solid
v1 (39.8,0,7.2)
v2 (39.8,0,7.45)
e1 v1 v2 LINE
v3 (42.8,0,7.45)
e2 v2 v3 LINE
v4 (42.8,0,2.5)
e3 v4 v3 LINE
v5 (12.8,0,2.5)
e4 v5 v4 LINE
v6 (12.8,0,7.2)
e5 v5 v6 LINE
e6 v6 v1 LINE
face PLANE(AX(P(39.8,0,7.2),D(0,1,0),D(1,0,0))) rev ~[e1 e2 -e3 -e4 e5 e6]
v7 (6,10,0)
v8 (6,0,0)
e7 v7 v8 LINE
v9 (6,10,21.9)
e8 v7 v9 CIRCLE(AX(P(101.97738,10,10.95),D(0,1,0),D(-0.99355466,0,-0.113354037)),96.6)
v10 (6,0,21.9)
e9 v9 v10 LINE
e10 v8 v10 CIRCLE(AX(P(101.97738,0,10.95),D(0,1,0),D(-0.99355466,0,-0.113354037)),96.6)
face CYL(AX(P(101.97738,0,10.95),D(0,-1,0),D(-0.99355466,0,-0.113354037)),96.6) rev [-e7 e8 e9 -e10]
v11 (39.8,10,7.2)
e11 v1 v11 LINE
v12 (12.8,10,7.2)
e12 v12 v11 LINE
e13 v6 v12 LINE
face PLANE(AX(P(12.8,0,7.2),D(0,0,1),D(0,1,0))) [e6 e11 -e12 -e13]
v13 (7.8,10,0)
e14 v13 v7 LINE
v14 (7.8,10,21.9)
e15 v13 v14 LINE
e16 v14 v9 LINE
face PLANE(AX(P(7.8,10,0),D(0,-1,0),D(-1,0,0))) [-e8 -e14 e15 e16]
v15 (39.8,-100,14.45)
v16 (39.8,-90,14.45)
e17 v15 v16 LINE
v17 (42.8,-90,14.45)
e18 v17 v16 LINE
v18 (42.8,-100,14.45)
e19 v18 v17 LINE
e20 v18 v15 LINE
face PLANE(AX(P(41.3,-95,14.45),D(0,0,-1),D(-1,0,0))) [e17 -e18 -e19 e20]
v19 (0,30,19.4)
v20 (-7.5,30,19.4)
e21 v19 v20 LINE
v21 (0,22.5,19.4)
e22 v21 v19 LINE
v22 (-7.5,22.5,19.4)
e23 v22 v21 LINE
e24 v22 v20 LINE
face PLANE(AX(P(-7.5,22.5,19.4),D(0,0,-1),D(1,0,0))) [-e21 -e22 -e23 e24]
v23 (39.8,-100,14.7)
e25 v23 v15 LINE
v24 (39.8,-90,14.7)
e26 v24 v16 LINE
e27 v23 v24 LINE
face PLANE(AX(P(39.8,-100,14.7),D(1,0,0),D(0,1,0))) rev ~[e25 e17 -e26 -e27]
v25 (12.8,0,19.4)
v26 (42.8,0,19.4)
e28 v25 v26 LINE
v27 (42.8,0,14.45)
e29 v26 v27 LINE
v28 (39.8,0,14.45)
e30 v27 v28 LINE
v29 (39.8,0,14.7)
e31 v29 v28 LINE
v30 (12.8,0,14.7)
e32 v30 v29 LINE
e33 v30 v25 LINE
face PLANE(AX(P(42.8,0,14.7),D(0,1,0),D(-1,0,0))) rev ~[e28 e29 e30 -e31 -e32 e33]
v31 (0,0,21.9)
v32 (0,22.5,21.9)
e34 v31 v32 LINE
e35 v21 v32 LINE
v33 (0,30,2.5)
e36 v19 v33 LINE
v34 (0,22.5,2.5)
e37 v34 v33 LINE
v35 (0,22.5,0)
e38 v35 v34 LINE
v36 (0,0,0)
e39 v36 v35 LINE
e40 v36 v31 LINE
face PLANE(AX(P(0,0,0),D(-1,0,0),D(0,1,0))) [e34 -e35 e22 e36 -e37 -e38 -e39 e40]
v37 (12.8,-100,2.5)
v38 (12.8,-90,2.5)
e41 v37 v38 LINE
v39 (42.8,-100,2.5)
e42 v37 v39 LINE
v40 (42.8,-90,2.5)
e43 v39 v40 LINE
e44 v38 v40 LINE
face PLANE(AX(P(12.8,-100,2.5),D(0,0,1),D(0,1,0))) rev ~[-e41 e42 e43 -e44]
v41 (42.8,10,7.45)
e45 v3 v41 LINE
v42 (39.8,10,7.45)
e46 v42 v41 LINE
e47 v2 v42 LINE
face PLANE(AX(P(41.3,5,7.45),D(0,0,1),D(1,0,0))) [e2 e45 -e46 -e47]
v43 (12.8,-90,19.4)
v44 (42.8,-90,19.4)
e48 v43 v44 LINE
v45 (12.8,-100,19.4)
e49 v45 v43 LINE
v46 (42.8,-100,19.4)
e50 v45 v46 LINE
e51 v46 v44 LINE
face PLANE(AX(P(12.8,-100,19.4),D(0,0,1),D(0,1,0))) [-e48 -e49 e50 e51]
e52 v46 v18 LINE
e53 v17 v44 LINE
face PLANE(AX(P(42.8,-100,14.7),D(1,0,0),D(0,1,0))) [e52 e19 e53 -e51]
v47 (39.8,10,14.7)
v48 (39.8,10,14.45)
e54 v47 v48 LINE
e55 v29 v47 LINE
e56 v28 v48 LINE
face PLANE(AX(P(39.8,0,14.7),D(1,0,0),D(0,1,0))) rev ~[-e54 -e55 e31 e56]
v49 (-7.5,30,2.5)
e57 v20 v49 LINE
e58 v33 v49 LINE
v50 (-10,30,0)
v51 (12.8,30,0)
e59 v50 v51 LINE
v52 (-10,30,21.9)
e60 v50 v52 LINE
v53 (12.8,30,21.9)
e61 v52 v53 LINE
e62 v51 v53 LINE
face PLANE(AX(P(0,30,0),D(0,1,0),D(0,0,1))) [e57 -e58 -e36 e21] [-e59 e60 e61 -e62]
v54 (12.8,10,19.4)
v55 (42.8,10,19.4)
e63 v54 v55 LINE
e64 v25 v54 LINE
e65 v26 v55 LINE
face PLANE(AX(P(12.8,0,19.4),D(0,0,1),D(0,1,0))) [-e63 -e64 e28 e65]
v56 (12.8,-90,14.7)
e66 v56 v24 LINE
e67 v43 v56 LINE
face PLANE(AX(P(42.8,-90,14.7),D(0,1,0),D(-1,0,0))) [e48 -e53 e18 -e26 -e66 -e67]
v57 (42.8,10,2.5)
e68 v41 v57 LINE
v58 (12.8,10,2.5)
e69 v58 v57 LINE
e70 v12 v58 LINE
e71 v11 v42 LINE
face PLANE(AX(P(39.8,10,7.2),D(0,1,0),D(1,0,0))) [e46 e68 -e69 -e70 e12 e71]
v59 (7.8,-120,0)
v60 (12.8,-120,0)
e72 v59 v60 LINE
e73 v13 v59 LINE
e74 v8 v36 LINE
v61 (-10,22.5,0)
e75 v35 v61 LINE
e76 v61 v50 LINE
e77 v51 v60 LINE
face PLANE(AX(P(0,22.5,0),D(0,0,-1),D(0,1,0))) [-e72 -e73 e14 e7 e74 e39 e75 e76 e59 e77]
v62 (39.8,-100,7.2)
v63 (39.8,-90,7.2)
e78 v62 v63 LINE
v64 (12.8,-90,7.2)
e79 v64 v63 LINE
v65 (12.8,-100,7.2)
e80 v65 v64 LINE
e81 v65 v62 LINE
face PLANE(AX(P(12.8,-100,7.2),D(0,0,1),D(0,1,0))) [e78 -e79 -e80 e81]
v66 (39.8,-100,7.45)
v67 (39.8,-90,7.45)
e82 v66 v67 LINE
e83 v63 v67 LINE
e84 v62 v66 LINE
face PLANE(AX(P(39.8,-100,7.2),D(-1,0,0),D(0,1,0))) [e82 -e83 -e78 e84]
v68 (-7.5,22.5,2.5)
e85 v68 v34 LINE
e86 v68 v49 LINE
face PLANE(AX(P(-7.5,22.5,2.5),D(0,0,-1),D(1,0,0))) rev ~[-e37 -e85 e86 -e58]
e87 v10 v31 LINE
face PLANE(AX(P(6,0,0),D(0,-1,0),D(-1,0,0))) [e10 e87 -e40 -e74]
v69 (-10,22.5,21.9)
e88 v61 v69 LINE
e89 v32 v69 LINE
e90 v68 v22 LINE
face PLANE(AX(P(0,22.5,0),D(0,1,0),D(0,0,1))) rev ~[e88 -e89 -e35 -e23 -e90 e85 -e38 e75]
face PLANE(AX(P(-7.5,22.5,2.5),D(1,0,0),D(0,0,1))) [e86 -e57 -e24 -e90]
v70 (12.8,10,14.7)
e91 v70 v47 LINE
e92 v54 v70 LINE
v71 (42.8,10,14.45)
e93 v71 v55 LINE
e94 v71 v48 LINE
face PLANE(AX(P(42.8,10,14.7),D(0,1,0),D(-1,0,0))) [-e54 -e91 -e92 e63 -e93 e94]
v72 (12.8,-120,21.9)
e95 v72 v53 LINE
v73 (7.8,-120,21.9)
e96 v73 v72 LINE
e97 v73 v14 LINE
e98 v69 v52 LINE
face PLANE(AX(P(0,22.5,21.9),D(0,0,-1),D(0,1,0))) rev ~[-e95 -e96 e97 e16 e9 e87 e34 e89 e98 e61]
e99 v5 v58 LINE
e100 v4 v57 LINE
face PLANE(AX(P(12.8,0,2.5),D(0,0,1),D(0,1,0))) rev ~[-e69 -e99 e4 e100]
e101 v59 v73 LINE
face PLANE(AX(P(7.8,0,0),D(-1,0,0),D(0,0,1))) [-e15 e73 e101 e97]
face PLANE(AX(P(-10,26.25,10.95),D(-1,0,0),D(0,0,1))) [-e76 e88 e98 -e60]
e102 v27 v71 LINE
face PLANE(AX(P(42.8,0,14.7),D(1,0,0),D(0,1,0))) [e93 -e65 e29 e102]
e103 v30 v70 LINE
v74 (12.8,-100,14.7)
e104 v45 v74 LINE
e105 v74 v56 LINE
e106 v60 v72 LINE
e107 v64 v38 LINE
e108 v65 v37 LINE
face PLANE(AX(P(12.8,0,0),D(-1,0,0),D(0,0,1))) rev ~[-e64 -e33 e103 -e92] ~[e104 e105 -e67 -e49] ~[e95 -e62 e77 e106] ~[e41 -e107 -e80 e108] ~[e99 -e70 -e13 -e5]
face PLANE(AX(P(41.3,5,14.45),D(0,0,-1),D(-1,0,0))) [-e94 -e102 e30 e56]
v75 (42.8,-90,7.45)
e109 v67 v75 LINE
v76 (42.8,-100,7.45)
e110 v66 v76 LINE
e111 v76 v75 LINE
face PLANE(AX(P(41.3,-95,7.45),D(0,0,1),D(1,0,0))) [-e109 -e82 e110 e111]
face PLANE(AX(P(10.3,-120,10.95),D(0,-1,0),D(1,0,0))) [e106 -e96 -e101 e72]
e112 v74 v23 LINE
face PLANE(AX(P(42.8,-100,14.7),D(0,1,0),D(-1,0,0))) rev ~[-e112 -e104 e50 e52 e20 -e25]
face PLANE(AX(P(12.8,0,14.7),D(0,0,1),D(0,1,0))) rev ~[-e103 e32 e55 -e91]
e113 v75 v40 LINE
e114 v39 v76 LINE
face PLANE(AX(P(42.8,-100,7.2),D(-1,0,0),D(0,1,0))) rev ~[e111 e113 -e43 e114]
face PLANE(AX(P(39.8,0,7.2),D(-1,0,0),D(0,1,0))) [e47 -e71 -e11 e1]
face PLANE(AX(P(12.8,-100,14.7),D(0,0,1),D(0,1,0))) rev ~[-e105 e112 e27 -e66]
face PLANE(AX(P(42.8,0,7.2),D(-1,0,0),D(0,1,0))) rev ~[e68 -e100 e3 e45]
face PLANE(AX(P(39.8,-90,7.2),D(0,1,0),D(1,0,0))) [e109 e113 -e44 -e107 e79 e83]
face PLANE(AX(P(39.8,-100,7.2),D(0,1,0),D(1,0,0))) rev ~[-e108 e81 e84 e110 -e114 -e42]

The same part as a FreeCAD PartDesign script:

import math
import FreeCAD as App
import Part
import Sketcher

V = App.Vector

doc = App.newDocument("Part")
body = doc.addObject("PartDesign::Body", "Body")

# Sketch on XY plane
sketch1 = body.newObject("Sketcher::SketchObject", "Sketch")
sketch1.AttachmentSupport = (doc.getObject("XY_Plane"), [""])
sketch1.MapMode = "FlatFace"
sketch1.addGeometry(Part.LineSegment(V(0, 30, 0), V(0, 0, 0)), False)
sketch1.addGeometry(Part.LineSegment(V(0, 0, 0), V(6, 0, 0)), False)
sketch1.addGeometry(Part.LineSegment(V(6, 0, 0), V(6, 10, 0)), False)
sketch1.addGeometry(Part.LineSegment(V(6, 10, 0), V(7.8, 10, 0)), False)
sketch1.addGeometry(Part.LineSegment(V(7.8, 10, 0), V(7.8, 0, 0)), False)
sketch1.addGeometry(Part.LineSegment(V(7.8, 0, 0), V(12.8, 0, 0)), False)
sketch1.addGeometry(Part.LineSegment(V(12.8, 0, 0), V(12.8, 30, 0)), False)
sketch1.addGeometry(Part.LineSegment(V(12.8, 30, 0), V(0, 30, 0)), False)
sketch1.addConstraint(Sketcher.Constraint("Coincident", 0, 2, 1, 1))
sketch1.addConstraint(Sketcher.Constraint("Coincident", 1, 2, 2, 1))
sketch1.addConstraint(Sketcher.Constraint("Coincident", 2, 2, 3, 1))
sketch1.addConstraint(Sketcher.Constraint("Coincident", 3, 2, 4, 1))
sketch1.addConstraint(Sketcher.Constraint("Coincident", 4, 2, 5, 1))
sketch1.addConstraint(Sketcher.Constraint("Coincident", 5, 2, 6, 1))
sketch1.addConstraint(Sketcher.Constraint("Coincident", 6, 2, 7, 1))
sketch1.addConstraint(Sketcher.Constraint("Coincident", 7, 2, 0, 1))
sketch1.addConstraint(Sketcher.Constraint("Vertical", 0))
sketch1.addConstraint(Sketcher.Constraint("Horizontal", 1))
sketch1.addConstraint(Sketcher.Constraint("Vertical", 2))
sketch1.addConstraint(Sketcher.Constraint("Horizontal", 3))
sketch1.addConstraint(Sketcher.Constraint("Vertical", 4))
sketch1.addConstraint(Sketcher.Constraint("Horizontal", 5))
sketch1.addConstraint(Sketcher.Constraint("Vertical", 6))
sketch1.addConstraint(Sketcher.Constraint("Horizontal", 7))
sketch1.addConstraint(Sketcher.Constraint("Coincident", 0, 2, -1, 1))
sketch1.addConstraint(Sketcher.Constraint("PointOnObject", 4, 2, -1))
sketch1.addConstraint(Sketcher.Constraint("DistanceX", 1, 1, 1, 2, 6.0))
sketch1.addConstraint(Sketcher.Constraint("DistanceX", 5, 1, 5, 2, 5.0))
sketch1.addConstraint(Sketcher.Constraint("DistanceY", 0, 2, 0, 1, 30.0))
sketch1.addConstraint(Sketcher.Constraint("DistanceY", 2, 1, 2, 2, 10.0))
sketch1.addConstraint(Sketcher.Constraint("DistanceX", 3, 1, 3, 2, 1.8))
pad1 = body.newObject("PartDesign::Pad", "Pad")
pad1.Profile = sketch1
pad1.Length = 21.9

# Sketch on YZ plane
sketch2 = body.newObject("Sketcher::SketchObject", "Sketch001")
sketch2.AttachmentSupport = (doc.getObject("YZ_Plane"), [""])
sketch2.MapMode = "FlatFace"
sketch2.AttachmentOffset = App.Placement(V(0, 0, 12.8), App.Rotation())
sketch2.addGeometry(Part.LineSegment(V(10, 19.4, 0), V(0, 19.4, 0)), False)
sketch2.addGeometry(Part.LineSegment(V(0, 19.4, 0), V(0, 14.7, 0)), False)
sketch2.addGeometry(Part.LineSegment(V(0, 14.7, 0), V(10, 14.7, 0)), False)
sketch2.addGeometry(Part.LineSegment(V(10, 14.7, 0), V(10, 19.4, 0)), False)
sketch2.addGeometry(Part.LineSegment(V(10, 7.2, 0), V(0, 7.2, 0)), False)
sketch2.addGeometry(Part.LineSegment(V(0, 7.2, 0), V(0, 2.5, 0)), False)
sketch2.addGeometry(Part.LineSegment(V(0, 2.5, 0), V(10, 2.5, 0)), False)
sketch2.addGeometry(Part.LineSegment(V(10, 2.5, 0), V(10, 7.2, 0)), False)
sketch2.addConstraint(Sketcher.Constraint("Coincident", 0, 2, 1, 1))
sketch2.addConstraint(Sketcher.Constraint("Coincident", 1, 2, 2, 1))
sketch2.addConstraint(Sketcher.Constraint("Coincident", 2, 2, 3, 1))
sketch2.addConstraint(Sketcher.Constraint("Coincident", 3, 2, 0, 1))
sketch2.addConstraint(Sketcher.Constraint("Coincident", 4, 2, 5, 1))
sketch2.addConstraint(Sketcher.Constraint("Coincident", 5, 2, 6, 1))
sketch2.addConstraint(Sketcher.Constraint("Coincident", 6, 2, 7, 1))
sketch2.addConstraint(Sketcher.Constraint("Coincident", 7, 2, 4, 1))
sketch2.addConstraint(Sketcher.Constraint("Horizontal", 0))
sketch2.addConstraint(Sketcher.Constraint("Vertical", 1))
sketch2.addConstraint(Sketcher.Constraint("Horizontal", 2))
sketch2.addConstraint(Sketcher.Constraint("Vertical", 3))
sketch2.addConstraint(Sketcher.Constraint("Horizontal", 4))
sketch2.addConstraint(Sketcher.Constraint("Vertical", 5))
sketch2.addConstraint(Sketcher.Constraint("Horizontal", 6))
sketch2.addConstraint(Sketcher.Constraint("Vertical", 7))
sketch2.addConstraint(Sketcher.Constraint("PointOnObject", 0, 2, -2))
sketch2.addConstraint(Sketcher.Constraint("PointOnObject", 4, 2, -2))
sketch2.addConstraint(Sketcher.Constraint("Vertical", 3, 2, 6, 2))
sketch2.addConstraint(Sketcher.Constraint("Equal", 3, 5))
sketch2.addConstraint(Sketcher.Constraint("DistanceX", 0, 2, 0, 1, 10.0))
sketch2.addConstraint(Sketcher.Constraint("DistanceY", 1, 2, 1, 1, 4.7))
sketch2.addConstraint(Sketcher.Constraint("DistanceY", -1, 1, 0, 2, 19.4))
sketch2.addConstraint(Sketcher.Constraint("DistanceY", -1, 1, 4, 2, 7.2))
pad2 = body.newObject("PartDesign::Pad", "Pad001")
pad2.Profile = sketch2
pad2.Length = 30

# Sketch on XZ plane
sketch3 = body.newObject("Sketcher::SketchObject", "Sketch002")
sketch3.AttachmentSupport = (doc.getObject("XZ_Plane"), [""])
sketch3.MapMode = "FlatFace"
sketch3.addGeometry(Part.LineSegment(V(8, 22, 0), V(8, 0, 0)), False)
sketch3.addGeometry(Part.LineSegment(V(8, 0, 0), V(13, 0, 0)), False)
sketch3.addGeometry(Part.LineSegment(V(13, 0, 0), V(13, 22, 0)), False)
sketch3.addGeometry(Part.LineSegment(V(13, 22, 0), V(8, 22, 0)), False)
sketch3.addConstraint(Sketcher.Constraint("Coincident", 0, 2, 1, 1))
sketch3.addConstraint(Sketcher.Constraint("Coincident", 1, 2, 2, 1))
sketch3.addConstraint(Sketcher.Constraint("Coincident", 2, 2, 3, 1))
sketch3.addConstraint(Sketcher.Constraint("Coincident", 3, 2, 0, 1))
sketch3.addConstraint(Sketcher.Constraint("Vertical", 0))
sketch3.addConstraint(Sketcher.Constraint("Horizontal", 1))
sketch3.addConstraint(Sketcher.Constraint("Vertical", 2))
sketch3.addConstraint(Sketcher.Constraint("Horizontal", 3))
sketch3.addConstraint(Sketcher.Constraint("PointOnObject", 0, 2, -1))
sketch3.addConstraint(Sketcher.Constraint("DistanceX", 1, 1, 1, 2, 5.0))
sketch3.addConstraint(Sketcher.Constraint("DistanceY", 0, 2, 0, 1, 21.9))
sketch3.addConstraint(Sketcher.Constraint("DistanceX", -1, 1, 0, 2, 7.8))
pad3 = body.newObject("PartDesign::Pad", "Pad002")
pad3.Profile = sketch3
pad3.Length = 120

# Sketch on XY plane
sketch4 = body.newObject("Sketcher::SketchObject", "Sketch003")
sketch4.AttachmentSupport = (doc.getObject("XY_Plane"), [""])
sketch4.MapMode = "FlatFace"
sketch4.AttachmentOffset = App.Placement(V(0, 0, 14.7), App.Rotation())
sketch4.addGeometry(Part.LineSegment(V(42.8, 10, 0), V(42.8, 0, 0)), False)
sketch4.addGeometry(Part.LineSegment(V(42.8, 0, 0), V(39.8, 0, 0)), False)
sketch4.addGeometry(Part.LineSegment(V(39.8, 0, 0), V(39.8, 10, 0)), False)
sketch4.addGeometry(Part.LineSegment(V(39.8, 10, 0), V(42.8, 10, 0)), False)
sketch4.addConstraint(Sketcher.Constraint("Coincident", 0, 2, 1, 1))
sketch4.addConstraint(Sketcher.Constraint("Coincident", 1, 2, 2, 1))
sketch4.addConstraint(Sketcher.Constraint("Coincident", 2, 2, 3, 1))
sketch4.addConstraint(Sketcher.Constraint("Coincident", 3, 2, 0, 1))
sketch4.addConstraint(Sketcher.Constraint("Vertical", 0))
sketch4.addConstraint(Sketcher.Constraint("Horizontal", 1))
sketch4.addConstraint(Sketcher.Constraint("Vertical", 2))
sketch4.addConstraint(Sketcher.Constraint("Horizontal", 3))
sketch4.addConstraint(Sketcher.Constraint("PointOnObject", 0, 2, -1))
sketch4.addConstraint(Sketcher.Constraint("DistanceX", 1, 2, 1, 1, 3.0))
sketch4.addConstraint(Sketcher.Constraint("DistanceY", 0, 2, 0, 1, 10.0))
sketch4.addConstraint(Sketcher.Constraint("DistanceX", -1, 1, 0, 2, 42.8))
pad4 = body.newObject("PartDesign::Pad", "Pad003")
pad4.Profile = sketch4
pad4.Length = 0.25
pad4.Reversed = True

# Sketch on XY plane
sketch5 = body.newObject("Sketcher::SketchObject", "Sketch004")
sketch5.AttachmentSupport = (doc.getObject("XY_Plane"), [""])
sketch5.MapMode = "FlatFace"
sketch5.AttachmentOffset = App.Placement(V(0, 0, 7.2), App.Rotation())
sketch5.addGeometry(Part.LineSegment(V(39.8, 10, 0), V(39.8, 0, 0)), False)
sketch5.addGeometry(Part.LineSegment(V(39.8, 0, 0), V(42.8, 0, 0)), False)
sketch5.addGeometry(Part.LineSegment(V(42.8, 0, 0), V(42.8, 10, 0)), False)
sketch5.addGeometry(Part.LineSegment(V(42.8, 10, 0), V(39.8, 10, 0)), False)
sketch5.addConstraint(Sketcher.Constraint("Coincident", 0, 2, 1, 1))
sketch5.addConstraint(Sketcher.Constraint("Coincident", 1, 2, 2, 1))
sketch5.addConstraint(Sketcher.Constraint("Coincident", 2, 2, 3, 1))
sketch5.addConstraint(Sketcher.Constraint("Coincident", 3, 2, 0, 1))
sketch5.addConstraint(Sketcher.Constraint("Vertical", 0))
sketch5.addConstraint(Sketcher.Constraint("Horizontal", 1))
sketch5.addConstraint(Sketcher.Constraint("Vertical", 2))
sketch5.addConstraint(Sketcher.Constraint("Horizontal", 3))
sketch5.addConstraint(Sketcher.Constraint("PointOnObject", 0, 2, -1))
sketch5.addConstraint(Sketcher.Constraint("DistanceX", 1, 1, 1, 2, 3.0))
sketch5.addConstraint(Sketcher.Constraint("DistanceY", 0, 2, 0, 1, 10.0))
sketch5.addConstraint(Sketcher.Constraint("DistanceX", -1, 1, 0, 2, 39.8))
pad5 = body.newObject("PartDesign::Pad", "Pad004")
pad5.Profile = sketch5
pad5.Length = 0.25

# Sketch on XZ plane
sketch6 = body.newObject("Sketcher::SketchObject", "Sketch005")
sketch6.AttachmentSupport = (doc.getObject("XZ_Plane"), [""])
sketch6.MapMode = "FlatFace"
sketch6.addGeometry(Part.LineSegment(V(6, 0, 0), V(6, 22, 0)), False)
sketch6.addGeometry(Part.ArcOfCircle(Part.Circle(V(102, 11, 0), V(0, 0, 1), 97), math.radians(173.49), math.radians(186.51)), False)
sketch6.addConstraint(Sketcher.Constraint("Coincident", 0, 1, 1, 2))
sketch6.addConstraint(Sketcher.Constraint("Coincident", 1, 1, 0, 2))
sketch6.addConstraint(Sketcher.Constraint("Vertical", 0))
sketch6.addConstraint(Sketcher.Constraint("PointOnObject", 0, 1, -1))
sketch6.addConstraint(Sketcher.Constraint("Radius", 1, 96.6))
sketch6.addConstraint(Sketcher.Constraint("DistanceY", 0, 1, 0, 2, 21.9))
sketch6.addConstraint(Sketcher.Constraint("DistanceX", -1, 1, 0, 1, 6.0))
pocket1 = body.newObject("PartDesign::Pocket", "Pocket")
pocket1.Profile = sketch6
pocket1.Length = 10

# Sketch on YZ plane
sketch7 = body.newObject("Sketcher::SketchObject", "Sketch006")
sketch7.AttachmentSupport = (doc.getObject("YZ_Plane"), [""])
sketch7.MapMode = "FlatFace"
sketch7.addGeometry(Part.LineSegment(V(30, 0, 0), V(22, 0, 0)), False)
sketch7.addGeometry(Part.LineSegment(V(22, 0, 0), V(22, 22, 0)), False)
sketch7.addGeometry(Part.LineSegment(V(22, 22, 0), V(30, 22, 0)), False)
sketch7.addGeometry(Part.LineSegment(V(30, 22, 0), V(30, 0, 0)), False)
sketch7.addConstraint(Sketcher.Constraint("Coincident", 0, 2, 1, 1))
sketch7.addConstraint(Sketcher.Constraint("Coincident", 1, 2, 2, 1))
sketch7.addConstraint(Sketcher.Constraint("Coincident", 2, 2, 3, 1))
sketch7.addConstraint(Sketcher.Constraint("Coincident", 3, 2, 0, 1))
sketch7.addConstraint(Sketcher.Constraint("Horizontal", 0))
sketch7.addConstraint(Sketcher.Constraint("Vertical", 1))
sketch7.addConstraint(Sketcher.Constraint("Horizontal", 2))
sketch7.addConstraint(Sketcher.Constraint("Vertical", 3))
sketch7.addConstraint(Sketcher.Constraint("PointOnObject", 0, 2, -1))
sketch7.addConstraint(Sketcher.Constraint("DistanceX", 0, 2, 0, 1, 7.5))
sketch7.addConstraint(Sketcher.Constraint("DistanceY", 1, 1, 1, 2, 21.9))
sketch7.addConstraint(Sketcher.Constraint("DistanceX", -1, 1, 2, 2, 30.0))
pad6 = body.newObject("PartDesign::Pad", "Pad005")
pad6.Profile = sketch7
pad6.Length = 10
pad6.Reversed = True

# Sketch on XZ plane
sketch8 = body.newObject("Sketcher::SketchObject", "Sketch007")
sketch8.AttachmentSupport = (doc.getObject("XZ_Plane"), [""])
sketch8.MapMode = "FlatFace"
sketch8.AttachmentOffset = App.Placement(V(0, 0, -22.5), App.Rotation())
sketch8.addGeometry(Part.LineSegment(V(-8, 19, 0), V(-8, 2, 0)), False)
sketch8.addGeometry(Part.LineSegment(V(-8, 2, 0), V(0, 2, 0)), False)
sketch8.addGeometry(Part.LineSegment(V(0, 2, 0), V(0, 19, 0)), False)
sketch8.addGeometry(Part.LineSegment(V(0, 19, 0), V(-8, 19, 0)), False)
sketch8.addConstraint(Sketcher.Constraint("Coincident", 0, 2, 1, 1))
sketch8.addConstraint(Sketcher.Constraint("Coincident", 1, 2, 2, 1))
sketch8.addConstraint(Sketcher.Constraint("Coincident", 2, 2, 3, 1))
sketch8.addConstraint(Sketcher.Constraint("Coincident", 3, 2, 0, 1))
sketch8.addConstraint(Sketcher.Constraint("Vertical", 0))
sketch8.addConstraint(Sketcher.Constraint("Horizontal", 1))
sketch8.addConstraint(Sketcher.Constraint("Vertical", 2))
sketch8.addConstraint(Sketcher.Constraint("Horizontal", 3))
sketch8.addConstraint(Sketcher.Constraint("PointOnObject", 1, 2, -2))
sketch8.addConstraint(Sketcher.Constraint("DistanceX", 1, 1, 1, 2, 7.5))
sketch8.addConstraint(Sketcher.Constraint("DistanceY", 0, 2, 0, 1, 16.9))
sketch8.addConstraint(Sketcher.Constraint("DistanceY", -1, 1, 0, 2, 2.5))
pocket2 = body.newObject("PartDesign::Pocket", "Pocket001")
pocket2.Profile = sketch8
pocket2.Length = 10
doc.recompute()

linearpattern = body.newObject("PartDesign::LinearPattern", "LinearPattern")
linearpattern.Originals = [pad2, pad4, pad5]
linearpattern.Direction = (doc.getObject("Y_Axis"), [""])
linearpattern.Mode = "offset"
linearpattern.Offset = 100
linearpattern.Occurrences = 2
linearpattern.Reversed = True
body.Tip = linearpattern

doc.recompute()
